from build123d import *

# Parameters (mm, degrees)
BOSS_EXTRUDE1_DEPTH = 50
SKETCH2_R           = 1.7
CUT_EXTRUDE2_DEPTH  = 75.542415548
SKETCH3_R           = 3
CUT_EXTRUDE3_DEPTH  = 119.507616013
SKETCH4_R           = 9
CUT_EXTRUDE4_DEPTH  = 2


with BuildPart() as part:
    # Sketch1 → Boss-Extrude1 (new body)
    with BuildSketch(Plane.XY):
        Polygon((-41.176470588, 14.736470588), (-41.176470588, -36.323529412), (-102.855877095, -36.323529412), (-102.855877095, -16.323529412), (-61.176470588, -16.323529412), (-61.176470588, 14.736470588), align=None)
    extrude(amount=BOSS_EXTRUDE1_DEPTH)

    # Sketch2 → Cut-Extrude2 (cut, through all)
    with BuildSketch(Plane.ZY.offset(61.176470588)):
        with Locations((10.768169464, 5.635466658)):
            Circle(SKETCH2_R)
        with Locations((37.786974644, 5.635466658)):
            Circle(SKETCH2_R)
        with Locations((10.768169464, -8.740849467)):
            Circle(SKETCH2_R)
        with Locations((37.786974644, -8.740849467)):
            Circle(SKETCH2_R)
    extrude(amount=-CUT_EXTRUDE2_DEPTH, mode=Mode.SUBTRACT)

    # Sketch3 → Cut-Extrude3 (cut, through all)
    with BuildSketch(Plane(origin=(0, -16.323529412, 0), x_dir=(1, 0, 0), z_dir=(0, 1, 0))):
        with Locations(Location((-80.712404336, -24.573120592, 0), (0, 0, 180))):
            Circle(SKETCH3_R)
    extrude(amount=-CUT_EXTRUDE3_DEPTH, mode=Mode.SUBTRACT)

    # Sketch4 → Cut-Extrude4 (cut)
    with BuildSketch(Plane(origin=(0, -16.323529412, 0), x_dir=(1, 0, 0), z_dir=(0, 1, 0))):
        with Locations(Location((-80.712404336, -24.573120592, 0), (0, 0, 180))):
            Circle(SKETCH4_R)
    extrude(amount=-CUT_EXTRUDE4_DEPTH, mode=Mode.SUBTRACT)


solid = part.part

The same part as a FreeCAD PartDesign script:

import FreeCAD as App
import Part
import Sketcher
from FreeCAD import Vector


def add_polygon(sketch, points):
    """Adds a closed chain of lines whose ends are joined by coincident constraints."""
    first, n = sketch.GeometryCount, len(points)
    for a, b in zip(points, points[1:] + points[:1]):
        sketch.addGeometry(Part.LineSegment(App.Vector(*a, 0), App.Vector(*b, 0)), False)
    for i in range(n):
        sketch.addConstraint(Sketcher.Constraint("Coincident", first + i, 2, first + (i + 1) % n, 1))

doc = App.newDocument("Part")
body = doc.addObject("PartDesign::Body", "Body")

# Sketch on XY plane
sketch1 = doc.addObject("Sketcher::SketchObject", "Sketch")
body.addObject(sketch1)
sketch1.AttachmentSupport = (doc.XY_Plane, [""])
sketch1.MapMode = "FlatFace"
add_polygon(sketch1, [(-41, -36), (-41, 15), (-61, 15), (-61, -16), (-103, -16), (-103, -36)])  # lines 0-5
sketch1.addConstraint([
    Sketcher.Constraint("Vertical", 0),
    Sketcher.Constraint("Horizontal", 1),
    Sketcher.Constraint("Vertical", 2),
    Sketcher.Constraint("Horizontal", 3),
    Sketcher.Constraint("Vertical", 4),
    Sketcher.Constraint("Horizontal", 5),
    Sketcher.Constraint("Equal", 1, 4),
    Sketcher.Constraint("DistanceX", 1, 2, 1, 1, 20.0),
    Sketcher.Constraint("DistanceY", 0, 1, 0, 2, 51.06),
    Sketcher.Constraint("DistanceX", 3, 2, 3, 1, 41.679407),
    Sketcher.Constraint("DistanceX", 0, 2, -1, 1, 41.176471),
    Sketcher.Constraint("DistanceY", -1, 1, 0, 2, 14.736471),
])
pad1 = doc.addObject("PartDesign::Pad", "Pad")
body.addObject(pad1)
pad1.Profile = sketch1
pad1.Length = 50

# Sketch on YZ plane
sketch2 = doc.addObject("Sketcher::SketchObject", "Sketch001")
body.addObject(sketch2)
sketch2.AttachmentSupport = (doc.YZ_Plane, [""])
sketch2.MapMode = "FlatFace"
sketch2.AttachmentOffset = App.Placement(Vector(0, 0, -61.176471), App.Rotation())
sketch2.addGeometry([
    Part.Circle(Vector(5.6, 10.8, 0), Vector(0, 0, 1), 1.7),
    Part.Circle(Vector(5.6, 37.8, 0), Vector(0, 0, 1), 1.7),
    Part.Circle(Vector(-8.7, 10.8, 0), Vector(0, 0, 1), 1.7),
    Part.Circle(Vector(-8.7, 37.8, 0), Vector(0, 0, 1), 1.7),
], False)
sketch2.addConstraint([
    Sketcher.Constraint("Equal", 0, 1),
    Sketcher.Constraint("Equal", 1, 2),
    Sketcher.Constraint("Equal", 2, 3),
    Sketcher.Constraint("Horizontal", 0, 3, 2, 3),
    Sketcher.Constraint("Horizontal", 1, 3, 3, 3),
    Sketcher.Constraint("Vertical", 0, 3, 1, 3),
    Sketcher.Constraint("Vertical", 2, 3, 3, 3),
    Sketcher.Constraint("Diameter", 0, 3.4),
    Sketcher.Constraint("DistanceY", -1, 1, 0, 3, 10.768169),
    Sketcher.Constraint("DistanceX", 2, 3, -1, 1, 8.740849),
    Sketcher.Constraint("DistanceX", -1, 1, 0, 3, 5.635467),
    Sketcher.Constraint("DistanceY", -1, 1, 1, 3, 37.786975),
])
pocket1 = doc.addObject("PartDesign::Pocket", "Pocket")
body.addObject(pocket1)
pocket1.Profile = sketch2
pocket1.Type = "ThroughAll"
pocket1.Reversed = True

# Sketch on XZ plane
sketch3 = doc.addObject("Sketcher::SketchObject", "Sketch002")
body.addObject(sketch3)
sketch3.AttachmentSupport = (doc.XZ_Plane, [""])
sketch3.MapMode = "FlatFace"
sketch3.AttachmentOffset = App.Placement(Vector(0, 0, 16.323529), App.Rotation())
sketch3.addGeometry(Part.Circle(Vector(-80.7, 24.6, 0), Vector(0, 0, 1), 3), False)
sketch3.addConstraint([
    Sketcher.Constraint("Diameter", 0, 6.0),
    Sketcher.Constraint("DistanceY", -1, 1, 0, 3, 24.573121),
    Sketcher.Constraint("DistanceX", 0, 3, -1, 1, 80.712404),
])
pocket2 = doc.addObject("PartDesign::Pocket", "Pocket001")
body.addObject(pocket2)
pocket2.Profile = sketch3
pocket2.Type = "ThroughAll"
pocket2.Reversed = True

# Sketch on XZ plane
sketch4 = doc.addObject("Sketcher::SketchObject", "Sketch003")
body.addObject(sketch4)
sketch4.AttachmentSupport = (doc.XZ_Plane, [""])
sketch4.MapMode = "FlatFace"
sketch4.AttachmentOffset = App.Placement(Vector(0, 0, 16.323529), App.Rotation())
sketch4.addGeometry(Part.Circle(Vector(-81, 25, 0), Vector(0, 0, 1), 9), False)
sketch4.addConstraint([
    Sketcher.Constraint("Diameter", 0, 18.0),
    Sketcher.Constraint("DistanceY", -1, 1, 0, 3, 24.573121),
    Sketcher.Constraint("DistanceX", 0, 3, -1, 1, 80.712404),
])
pocket3 = doc.addObject("PartDesign::Pocket", "Pocket002")
body.addObject(pocket3)
pocket3.Profile = sketch4
pocket3.Length = 2
pocket3.Reversed = True

doc.recompute()
